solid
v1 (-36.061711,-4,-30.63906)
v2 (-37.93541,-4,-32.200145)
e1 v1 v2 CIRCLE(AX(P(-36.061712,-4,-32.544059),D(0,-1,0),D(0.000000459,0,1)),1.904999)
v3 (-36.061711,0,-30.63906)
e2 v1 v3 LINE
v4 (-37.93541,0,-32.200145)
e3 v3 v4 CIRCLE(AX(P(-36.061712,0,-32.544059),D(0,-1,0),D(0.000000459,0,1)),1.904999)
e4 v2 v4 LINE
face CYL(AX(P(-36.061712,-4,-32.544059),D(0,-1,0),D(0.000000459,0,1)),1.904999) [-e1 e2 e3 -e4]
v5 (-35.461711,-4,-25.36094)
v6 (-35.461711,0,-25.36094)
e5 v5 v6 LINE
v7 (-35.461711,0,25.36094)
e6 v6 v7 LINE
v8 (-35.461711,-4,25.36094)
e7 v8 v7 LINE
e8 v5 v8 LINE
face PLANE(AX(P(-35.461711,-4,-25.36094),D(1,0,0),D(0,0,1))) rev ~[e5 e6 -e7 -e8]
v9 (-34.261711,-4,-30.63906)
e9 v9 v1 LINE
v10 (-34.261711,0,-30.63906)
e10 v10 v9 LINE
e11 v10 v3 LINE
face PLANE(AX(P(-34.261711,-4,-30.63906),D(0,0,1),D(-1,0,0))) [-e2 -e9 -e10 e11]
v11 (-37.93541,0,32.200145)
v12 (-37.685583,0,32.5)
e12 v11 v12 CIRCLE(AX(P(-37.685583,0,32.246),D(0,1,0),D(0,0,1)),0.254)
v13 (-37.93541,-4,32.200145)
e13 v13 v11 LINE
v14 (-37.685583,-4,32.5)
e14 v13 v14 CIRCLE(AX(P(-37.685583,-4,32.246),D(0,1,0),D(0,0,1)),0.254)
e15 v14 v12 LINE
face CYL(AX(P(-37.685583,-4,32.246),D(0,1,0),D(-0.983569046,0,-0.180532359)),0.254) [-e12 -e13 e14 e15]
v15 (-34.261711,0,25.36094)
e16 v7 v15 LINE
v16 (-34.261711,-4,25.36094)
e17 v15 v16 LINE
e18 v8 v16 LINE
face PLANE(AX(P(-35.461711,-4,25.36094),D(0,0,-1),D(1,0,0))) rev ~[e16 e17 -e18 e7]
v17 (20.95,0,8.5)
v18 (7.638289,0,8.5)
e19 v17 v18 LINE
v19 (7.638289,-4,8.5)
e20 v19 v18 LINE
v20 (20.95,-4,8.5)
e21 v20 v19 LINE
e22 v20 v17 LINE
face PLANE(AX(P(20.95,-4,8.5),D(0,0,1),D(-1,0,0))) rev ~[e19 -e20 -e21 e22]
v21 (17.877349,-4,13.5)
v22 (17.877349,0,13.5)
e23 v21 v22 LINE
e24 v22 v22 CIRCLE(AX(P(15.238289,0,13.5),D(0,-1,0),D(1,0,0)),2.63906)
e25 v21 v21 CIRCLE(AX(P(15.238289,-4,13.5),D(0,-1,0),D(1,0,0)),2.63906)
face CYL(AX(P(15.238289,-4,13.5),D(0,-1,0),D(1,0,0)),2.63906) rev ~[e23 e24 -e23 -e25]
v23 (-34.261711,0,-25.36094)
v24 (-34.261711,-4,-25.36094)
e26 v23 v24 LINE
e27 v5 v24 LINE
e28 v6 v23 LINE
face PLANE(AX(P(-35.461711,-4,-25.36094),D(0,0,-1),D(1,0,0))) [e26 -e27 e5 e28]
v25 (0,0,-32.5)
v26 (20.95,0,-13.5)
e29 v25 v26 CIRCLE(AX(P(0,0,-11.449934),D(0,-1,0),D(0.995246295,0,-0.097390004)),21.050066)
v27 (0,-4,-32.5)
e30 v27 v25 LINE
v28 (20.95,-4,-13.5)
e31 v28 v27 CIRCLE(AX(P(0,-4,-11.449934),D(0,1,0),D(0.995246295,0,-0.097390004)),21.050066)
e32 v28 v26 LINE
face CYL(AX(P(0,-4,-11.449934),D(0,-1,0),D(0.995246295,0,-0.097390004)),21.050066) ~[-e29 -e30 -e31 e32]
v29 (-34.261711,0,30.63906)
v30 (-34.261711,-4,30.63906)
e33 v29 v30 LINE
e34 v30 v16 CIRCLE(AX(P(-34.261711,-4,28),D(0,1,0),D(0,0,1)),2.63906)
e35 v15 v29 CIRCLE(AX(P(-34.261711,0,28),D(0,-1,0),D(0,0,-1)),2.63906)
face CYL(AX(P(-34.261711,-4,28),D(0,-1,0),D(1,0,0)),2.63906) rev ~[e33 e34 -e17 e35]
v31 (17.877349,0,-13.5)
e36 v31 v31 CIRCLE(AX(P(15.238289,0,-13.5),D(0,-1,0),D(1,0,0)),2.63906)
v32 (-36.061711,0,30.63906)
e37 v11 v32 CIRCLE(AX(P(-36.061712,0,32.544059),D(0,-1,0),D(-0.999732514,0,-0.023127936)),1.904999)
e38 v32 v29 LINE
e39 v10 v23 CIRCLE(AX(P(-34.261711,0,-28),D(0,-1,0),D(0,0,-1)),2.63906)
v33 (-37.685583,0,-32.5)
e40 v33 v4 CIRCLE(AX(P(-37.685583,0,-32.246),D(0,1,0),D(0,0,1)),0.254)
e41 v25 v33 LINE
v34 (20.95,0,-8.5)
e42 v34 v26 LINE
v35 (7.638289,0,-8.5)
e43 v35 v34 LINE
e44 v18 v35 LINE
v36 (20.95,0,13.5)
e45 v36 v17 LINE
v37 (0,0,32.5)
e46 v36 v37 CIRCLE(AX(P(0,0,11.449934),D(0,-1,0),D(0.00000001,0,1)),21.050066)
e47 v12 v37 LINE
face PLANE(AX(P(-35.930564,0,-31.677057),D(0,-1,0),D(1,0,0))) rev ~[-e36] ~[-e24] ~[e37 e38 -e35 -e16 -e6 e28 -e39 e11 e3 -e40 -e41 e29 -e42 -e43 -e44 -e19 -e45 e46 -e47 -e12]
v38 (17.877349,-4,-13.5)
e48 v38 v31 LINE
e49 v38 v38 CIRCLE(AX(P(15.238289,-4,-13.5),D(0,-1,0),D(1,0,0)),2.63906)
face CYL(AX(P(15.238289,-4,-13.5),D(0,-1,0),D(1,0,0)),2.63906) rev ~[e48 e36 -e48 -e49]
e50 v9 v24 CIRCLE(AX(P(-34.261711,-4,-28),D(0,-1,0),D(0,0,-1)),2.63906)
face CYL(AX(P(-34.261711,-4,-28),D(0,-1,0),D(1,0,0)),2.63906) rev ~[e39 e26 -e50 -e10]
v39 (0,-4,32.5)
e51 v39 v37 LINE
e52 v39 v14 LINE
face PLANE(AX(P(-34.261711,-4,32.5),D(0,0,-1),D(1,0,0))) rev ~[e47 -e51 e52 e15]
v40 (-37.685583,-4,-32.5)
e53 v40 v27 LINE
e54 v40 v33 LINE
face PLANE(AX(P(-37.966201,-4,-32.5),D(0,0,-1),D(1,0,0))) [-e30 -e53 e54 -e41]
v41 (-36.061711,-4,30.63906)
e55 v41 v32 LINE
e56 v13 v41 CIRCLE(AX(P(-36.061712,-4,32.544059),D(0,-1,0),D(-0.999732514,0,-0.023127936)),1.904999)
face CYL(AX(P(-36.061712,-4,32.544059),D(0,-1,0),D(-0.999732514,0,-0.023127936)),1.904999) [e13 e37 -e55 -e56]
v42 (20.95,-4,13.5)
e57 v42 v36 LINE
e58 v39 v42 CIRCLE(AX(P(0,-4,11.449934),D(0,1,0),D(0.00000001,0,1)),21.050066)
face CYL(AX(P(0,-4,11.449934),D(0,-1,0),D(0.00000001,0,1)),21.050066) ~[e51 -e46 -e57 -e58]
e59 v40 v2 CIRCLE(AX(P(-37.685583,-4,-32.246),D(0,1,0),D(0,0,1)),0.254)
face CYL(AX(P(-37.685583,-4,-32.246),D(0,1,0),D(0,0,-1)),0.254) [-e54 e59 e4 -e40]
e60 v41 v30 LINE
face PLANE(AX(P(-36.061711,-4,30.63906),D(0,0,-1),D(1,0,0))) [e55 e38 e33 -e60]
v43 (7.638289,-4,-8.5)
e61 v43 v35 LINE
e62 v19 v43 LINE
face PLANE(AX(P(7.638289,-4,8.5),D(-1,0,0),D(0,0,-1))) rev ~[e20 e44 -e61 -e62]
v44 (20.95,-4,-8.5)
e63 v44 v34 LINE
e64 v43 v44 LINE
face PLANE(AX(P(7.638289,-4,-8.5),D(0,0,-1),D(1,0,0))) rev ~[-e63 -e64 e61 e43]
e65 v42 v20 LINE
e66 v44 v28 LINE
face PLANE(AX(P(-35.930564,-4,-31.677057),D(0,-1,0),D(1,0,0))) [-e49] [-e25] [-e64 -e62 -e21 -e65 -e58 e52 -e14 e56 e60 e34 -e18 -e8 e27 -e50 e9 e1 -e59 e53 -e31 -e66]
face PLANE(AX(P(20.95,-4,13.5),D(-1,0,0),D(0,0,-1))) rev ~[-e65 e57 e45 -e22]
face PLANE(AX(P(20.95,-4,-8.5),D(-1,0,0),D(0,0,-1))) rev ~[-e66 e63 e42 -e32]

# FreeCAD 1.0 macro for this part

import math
import FreeCAD as App
import Part
import Sketcher

V = App.Vector
Q = App.Units.Quantity


def edges_at(feature, points):
    """Names of the edges that pass closest to the given points."""
    edges = feature.Shape.Edges
    near = lambda p: min(range(len(edges)), key=lambda i: edges[i].distToShape(Part.Vertex(*p))[0])
    return sorted({f"Edge{near(p) + 1}" for p in points})

doc = App.newDocument("Part")
body = doc.addObject("PartDesign::Body", "Body")

sketch1 = body.newObject("Sketcher::SketchObject", "Sketch")
sketch1.AttachmentSupport = (doc.getObject("XZ_Plane"), [""])
sketch1.MapMode = "FlatFace"
sketch1.addGeometry([
    Part.LineSegment(V(-34, 37, 0), V(-34, -37, 0)),
    Part.LineSegment(V(-34, -37, 0), V(34, -37, 0)),
    Part.LineSegment(V(34, -37, 0), V(34, 37, 0)),
    Part.LineSegment(V(34, 37, 0), V(-34, 37, 0)),
], False)
sketch1.addConstraint([
    Sketcher.Constraint("Coincident", 0, 2, 1, 1),
    Sketcher.Constraint("Coincident", 1, 2, 2, 1),
    Sketcher.Constraint("Coincident", 2, 2, 3, 1),
    Sketcher.Constraint("Coincident", 3, 2, 0, 1),
    Sketcher.Constraint("Vertical", 0),
    Sketcher.Constraint("Horizontal", 1),
    Sketcher.Constraint("Vertical", 2),
    Sketcher.Constraint("Horizontal", 3),
    Sketcher.Constraint("Symmetric", 0, 2, 2, 2, -1, 1),
    Sketcher.Constraint("DistanceX", 1, 1, 1, 2, Q("68.523422 mm")),
    Sketcher.Constraint("DistanceY", 0, 2, 0, 1, Q("74.860842 mm")),
])
pad1 = body.newObject("PartDesign::Pad", "Pad")
pad1.Profile = sketch1
pad1.Length = 4

sketch2 = body.newObject("Sketcher::SketchObject", "Sketch001")
sketch2.AttachmentSupport = (doc.getObject("XZ_Plane"), [""])
sketch2.MapMode = "FlatFace"
sketch2.AttachmentOffset = App.Placement(V(0, 0, 4), App.Rotation())
sketch2.addGeometry([
    Part.Circle(V(-34.3, 28, 0), V(0, 0, 1), 2.6),
    Part.Circle(V(15.2, 13.5, 0), V(0, 0, 1), 2.6),
    Part.Circle(V(-34.3, -28, 0), V(0, 0, 1), 2.6),
    Part.Circle(V(15.2, -13.5, 0), V(0, 0, 1), 2.6),
    Part.LineSegment(V(20.9, 8.5, 0), V(7.6, 8.5, 0)),
    Part.LineSegment(V(7.6, 8.5, 0), V(7.6, -8.5, 0)),
    Part.LineSegment(V(7.6, -8.5, 0), V(20.9, -8.5, 0)),
    Part.LineSegment(V(20.9, -8.5, 0), V(20.9, -13.5, 0)),
    Part.ArcOfCircle(Part.Circle(V(0, -11.4, 0), V(0, 0, 1), 21.1), math.radians(-90), math.radians(-6)),
    Part.LineSegment(V(0, -32.5, 0), V(-34.3, -32.5, 0)),
    Part.LineSegment(V(-34.3, -32.5, 0), V(-34.3, -37.4, 0)),
    Part.LineSegment(V(-34.3, -37.4, 0), V(34.3, -37.4, 0)),
    Part.LineSegment(V(34.3, -37.4, 0), V(34.3, 37.4, 0)),
    Part.LineSegment(V(34.3, 37.4, 0), V(-34.3, 37.4, 0)),
    Part.LineSegment(V(-34.3, 37.4, 0), V(-34.3, 32.5, 0)),
    Part.LineSegment(V(-34.3, 32.5, 0), V(0, 32.5, 0)),
    Part.ArcOfCircle(Part.Circle(V(0, 11.4, 0), V(0, 0, 1), 21.1), math.radians(6), math.radians(90)),
    Part.LineSegment(V(20.9, 13.5, 0), V(20.9, 8.5, 0)),
], False)
sketch2.addConstraint([
    Sketcher.Constraint("Coincident", 4, 2, 5, 1),
    Sketcher.Constraint("Coincident", 5, 2, 6, 1),
    Sketcher.Constraint("Coincident", 6, 2, 7, 1),
    Sketcher.Constraint("Coincident", 7, 2, 8, 2),
    Sketcher.Constraint("Tangent", 8, 1, 9, 1),
    Sketcher.Constraint("Coincident", 9, 2, 10, 1),
    Sketcher.Constraint("Coincident", 10, 2, 11, 1),
    Sketcher.Constraint("Coincident", 11, 2, 12, 1),
    Sketcher.Constraint("Coincident", 12, 2, 13, 1),
    Sketcher.Constraint("Coincident", 13, 2, 14, 1),
    Sketcher.Constraint("Coincident", 14, 2, 15, 1),
    Sketcher.Constraint("Tangent", 15, 2, 16, 2),
    Sketcher.Constraint("Coincident", 16, 1, 17, 1),
    Sketcher.Constraint("Coincident", 17, 2, 4, 1),
    Sketcher.Constraint("Horizontal", 4),
    Sketcher.Constraint("Vertical", 5),
    Sketcher.Constraint("Horizontal", 6),
    Sketcher.Constraint("Vertical", 7),
    Sketcher.Constraint("Horizontal", 9),
    Sketcher.Constraint("Vertical", 10),
    Sketcher.Constraint("Horizontal", 11),
    Sketcher.Constraint("Vertical", 12),
    Sketcher.Constraint("Horizontal", 13),
    Sketcher.Constraint("Vertical", 14),
    Sketcher.Constraint("Horizontal", 15),
    Sketcher.Constraint("Vertical", 17),
    Sketcher.Constraint("Equal", 0, 1),
    Sketcher.Constraint("Equal", 1, 2),
    Sketcher.Constraint("Equal", 2, 3),
    Sketcher.Constraint("Equal", 8, 16),
    Sketcher.Constraint("Symmetric", 8, 3, 16, 3, -1, 1),
    Sketcher.Constraint("Symmetric", 10, 2, 12, 2, -1, 1),
    Sketcher.Constraint("Symmetric", 0, 3, 2, 3, -1),
    Sketcher.Constraint("Symmetric", 1, 3, 3, 3, -1),
    Sketcher.Constraint("Symmetric", 7, 2, 16, 1, -1),
    Sketcher.Constraint("Horizontal", 3, 3, 7, 2),
    Sketcher.Constraint("Vertical", 2, 3, 9, 2),
    Sketcher.Constraint("Vertical", 10, 2, 13, 2),
    Sketcher.Constraint("Equal", 7, 17),
    Sketcher.Constraint("DistanceY", 5, 2, 5, 1, Q("17 mm")),
    Sketcher.Constraint("DistanceY", 7, 2, 7, 1, Q("5 mm")),
    Sketcher.Constraint("DistanceY", -1, 1, 0, 3, Q("28 mm")),
    Sketcher.Constraint("DistanceY", 8, 1, 3, 3, Q("19 mm")),
    Sketcher.Constraint("DistanceX", 0, 3, 1, 3, Q("49.5 mm")),
    Sketcher.Constraint("DistanceX", 4, 2, 1, 3, Q("7.6 mm")),
    Sketcher.Constraint("Diameter", 0, Q("5.27812 mm")),
    Sketcher.Constraint("DistanceX", -1, 1, 6, 2, Q("20.95 mm")),
    Sketcher.Constraint("DistanceX", 4, 2, 4, 1, Q("13.311711 mm")),
    Sketcher.Constraint("DistanceY", 10, 2, 10, 1, Q("4.930421 mm")),
])
pocket1 = body.newObject("PartDesign::Pocket", "Pocket")
pocket1.Profile = sketch2
pocket1.Type = "ThroughAll"

sketch3 = body.newObject("Sketcher::SketchObject", "Sketch002")
sketch3.AttachmentSupport = (doc.getObject("XZ_Plane"), [""])
sketch3.MapMode = "FlatFace"
sketch3.AttachmentOffset = App.Placement(V(0, 0, 4), App.Rotation())
sketch3.addGeometry([
    Part.LineSegment(V(-34.261711, -32.5, 0), V(-34.261711, -30.63906, 0)),
    Part.LineSegment(V(-34.261711, -30.63906, 0), V(-36.061711, -30.63906, 0)),
    Part.ArcOfCircle(Part.Circle(V(-36.061712, -32.544059, 0), V(0, 0, 1), 1.904999), math.radians(89.999974), math.radians(178.674749)),
    Part.LineSegment(V(-37.966201, -32.5, 0), V(-34.261711, -32.5, 0)),
    Part.LineSegment(V(-35.461711, 25.36094, 0), V(-35.461711, -25.36094, 0)),
    Part.LineSegment(V(-35.461711, -25.36094, 0), V(-34.261711, -25.36094, 0)),
    Part.LineSegment(V(-34.261711, -25.36094, 0), V(-34.261711, 25.36094, 0)),
    Part.LineSegment(V(-34.261711, 25.36094, 0), V(-35.461711, 25.36094, 0)),
    Part.LineSegment(V(-36.061711, 30.63906, 0), V(-34.261711, 30.63906, 0)),
    Part.LineSegment(V(-34.261711, 30.63906, 0), V(-34.261711, 32.5, 0)),
    Part.LineSegment(V(-34.261711, 32.5, 0), V(-37.966201, 32.5, 0)),
    Part.ArcOfCircle(Part.Circle(V(-36.061712, 32.544059, 0), V(0, 0, 1), 1.904999), math.radians(-178.674749), math.radians(-89.999974)),
], False)
sketch3.addConstraint([
    Sketcher.Constraint("Coincident", 0, 2, 1, 1),
    Sketcher.Constraint("Coincident", 1, 2, 2, 1),
    Sketcher.Constraint("Coincident", 2, 2, 3, 1),
    Sketcher.Constraint("Coincident", 3, 2, 0, 1),
    Sketcher.Constraint("Coincident", 4, 2, 5, 1),
    Sketcher.Constraint("Coincident", 5, 2, 6, 1),
    Sketcher.Constraint("Coincident", 6, 2, 7, 1),
    Sketcher.Constraint("Coincident", 7, 2, 4, 1),
    Sketcher.Constraint("Coincident", 8, 2, 9, 1),
    Sketcher.Constraint("Coincident", 9, 2, 10, 1),
    Sketcher.Constraint("Coincident", 10, 2, 11, 1),
    Sketcher.Constraint("Coincident", 11, 2, 8, 1),
    Sketcher.Constraint("Vertical", 0),
    Sketcher.Constraint("Horizontal", 1),
    Sketcher.Constraint("Horizontal", 3),
    Sketcher.Constraint("Vertical", 4),
    Sketcher.Constraint("Horizontal", 5),
    Sketcher.Constraint("Vertical", 6),
    Sketcher.Constraint("Horizontal", 7),
    Sketcher.Constraint("Horizontal", 8),
    Sketcher.Constraint("Vertical", 9),
    Sketcher.Constraint("Horizontal", 10),
    Sketcher.Constraint("DistanceX", 1, 2, 1, 1, Q("1.8 mm")),
    Sketcher.Constraint("DistanceX", 5, 1, 5, 2, Q("1.2 mm")),
    Sketcher.Constraint("DistanceX", 8, 1, 8, 2, Q("1.8 mm")),
    Sketcher.Constraint("Radius", 2, Q("1.904999 mm")),
    Sketcher.Constraint("Radius", 11, Q("1.904999 mm")),
    Sketcher.Constraint("DistanceY", 0, 2, 6, 2, Q("56 mm")),
    Sketcher.Constraint("DistanceY", 5, 2, 8, 2, Q("56 mm")),
    Sketcher.Constraint("DistanceY", 2, 2, -1, 1, Q("32.5 mm")),
    Sketcher.Constraint("DistanceY", -1, 1, 9, 2, Q("32.5 mm")),
    Sketcher.Constraint("DistanceX", 2, 3, 0, 2, Q("1.800001 mm")),
    Sketcher.Constraint("DistanceX", 11, 3, 0, 2, Q("1.800001 mm")),
    Sketcher.Constraint("DistanceX", 1, 2, 4, 2, Q("0.6 mm")),
    Sketcher.Constraint("DistanceX", 11, 3, 8, 2, Q("1.800001 mm")),
    Sketcher.Constraint("DistanceX", 3, 1, 3, 2, Q("3.70449 mm")),
    Sketcher.Constraint("DistanceX", 10, 2, 10, 1, Q("3.70449 mm")),
    Sketcher.Constraint("DistanceX", 2, 2, -1, 1, Q("37.966201 mm")),
])
pad2 = body.newObject("PartDesign::Pad", "Pad001")
pad2.Profile = sketch3
pad2.Length = 4
pad2.Reversed = True
doc.recompute()

fillet = body.newObject("PartDesign::Fillet", "Fillet")
fillet.Base = (pad2, edges_at(pad2, [(-37.966, -2, -32.5), (-37.966, -2, 32.5)]))
fillet.Radius = 0.254

doc.recompute()
